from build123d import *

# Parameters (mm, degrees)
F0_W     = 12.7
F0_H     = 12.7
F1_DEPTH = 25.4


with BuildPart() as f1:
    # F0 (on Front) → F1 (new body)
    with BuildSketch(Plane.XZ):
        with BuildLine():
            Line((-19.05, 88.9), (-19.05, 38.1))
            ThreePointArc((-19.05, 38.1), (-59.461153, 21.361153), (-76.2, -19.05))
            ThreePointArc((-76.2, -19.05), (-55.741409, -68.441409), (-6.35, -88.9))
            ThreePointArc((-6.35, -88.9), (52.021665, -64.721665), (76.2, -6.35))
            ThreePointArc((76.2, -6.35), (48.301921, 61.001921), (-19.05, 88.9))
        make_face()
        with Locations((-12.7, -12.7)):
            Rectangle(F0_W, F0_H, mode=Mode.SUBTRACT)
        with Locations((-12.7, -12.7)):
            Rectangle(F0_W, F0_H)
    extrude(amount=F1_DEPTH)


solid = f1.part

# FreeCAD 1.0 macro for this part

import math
import FreeCAD as App
import Part
import Sketcher
from FreeCAD import Vector
Q = App.Units.Quantity

doc = App.newDocument("Part")
params = doc.addObject("Spreadsheet::Sheet", "Params")
for row, (alias, value) in enumerate([
    ("sketch1_height", "2 in"),
    ("sketch1_radius", "2.2499999 in"),
    ("sketch1_radius2", "2.75 in"),
    ("pad1_length", "1 in"),
], start=1):
    params.set(f"A{row}", alias)
    params.set(f"B{row}", "=" + value)
    params.setAlias(f"B{row}", alias)

body = doc.addObject("PartDesign::Body", "Body")

# Sketch on XZ plane
sketch1 = body.newObject("Sketcher::SketchObject", "Sketch")
sketch1.AttachmentSupport = (doc.getObject("XZ_Plane"), [""])
sketch1.MapMode = "FlatFace"
sketch1.addGeometry(Part.LineSegment(Vector(-19.05, 88.9, 0), Vector(-19.05, 38.1, 0)), False)
sketch1.addGeometry(Part.ArcOfCircle(Part.Circle(Vector(-19.050002, -19.049998, 0), Vector(0, 0, 1), 57.149998), math.radians(89.999998), math.radians(180.000002)), False)
sketch1.addGeometry(Part.ArcOfCircle(Part.Circle(Vector(-6.350001, -19.050001, 0), Vector(0, 0, 1), 69.849999), math.radians(179.999999), math.radians(270.000001)), False)
sketch1.addGeometry(Part.ArcOfCircle(Part.Circle(Vector(-6.349999, -6.350001, 0), Vector(0, 0, 1), 82.549999), math.radians(-90.000001), math.radians(0.000001)), False)
sketch1.addGeometry(Part.ArcOfCircle(Part.Circle(Vector(-19.05, -6.35, 0), Vector(0, 0, 1), 95.25), math.radians(0), math.radians(90)), False)
sketch1.addConstraint(Sketcher.Constraint("Coincident", 0, 2, 1, 1))
sketch1.addConstraint(Sketcher.Constraint("Tangent", 1, 2, 2, 1))
sketch1.addConstraint(Sketcher.Constraint("Tangent", 2, 2, 3, 1))
sketch1.addConstraint(Sketcher.Constraint("Tangent", 3, 2, 4, 1))
sketch1.addConstraint(Sketcher.Constraint("Coincident", 4, 2, 0, 1))
sketch1.addConstraint(Sketcher.Constraint("Vertical", 0))
sketch1.addConstraint(Sketcher.Constraint("Horizontal", 3, 3, 4, 3))
sketch1.addConstraint(Sketcher.Constraint("Horizontal", 2, 3, 1, 2))
sketch1.addConstraint(Sketcher.Constraint("Vertical", 2, 3, 3, 3))
sketch1.addConstraint(Sketcher.Constraint("Vertical", 1, 3, 4, 3))
sketch1.addConstraint(Sketcher.Constraint("Vertical", 4, 3, 0, 2))
sketch1.addConstraint(Sketcher.Constraint("DistanceY", 0, 2, 0, 1, Q("2 in")))
sketch1.addConstraint(Sketcher.Constraint("Radius", 1, Q("2.2499999 in")))
sketch1.addConstraint(Sketcher.Constraint("Radius", 2, Q("2.75 in")))
sketch1.addConstraint(Sketcher.Constraint("DistanceX", 1, 2, -1, 1, Q("3 in")))
sketch1.addConstraint(Sketcher.Constraint("DistanceY", -1, 1, 0, 2, Q("1.5 in")))
sketch1.setExpression("Constraints[11]", "Params.sketch1_height")
sketch1.setExpression("Constraints[12]", "Params.sketch1_radius")
sketch1.setExpression("Constraints[13]", "Params.sketch1_radius2")
pad1 = body.newObject("PartDesign::Pad", "Pad")
pad1.Profile = sketch1
pad1.setExpression("Length", "Params.pad1_length")

doc.recompute()
